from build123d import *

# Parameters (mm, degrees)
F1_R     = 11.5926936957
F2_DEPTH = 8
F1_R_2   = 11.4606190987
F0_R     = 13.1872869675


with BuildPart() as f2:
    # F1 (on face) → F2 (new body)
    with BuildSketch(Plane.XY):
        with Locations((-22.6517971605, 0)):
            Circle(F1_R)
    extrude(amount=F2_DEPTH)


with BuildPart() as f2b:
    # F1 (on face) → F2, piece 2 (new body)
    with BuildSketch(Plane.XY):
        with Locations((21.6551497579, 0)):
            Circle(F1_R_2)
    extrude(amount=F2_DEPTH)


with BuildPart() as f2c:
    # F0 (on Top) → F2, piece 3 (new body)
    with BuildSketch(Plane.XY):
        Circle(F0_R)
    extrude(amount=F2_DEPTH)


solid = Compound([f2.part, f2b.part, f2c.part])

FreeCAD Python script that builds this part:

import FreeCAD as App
import Part
import Sketcher
from FreeCAD import Vector
Q = App.Units.Quantity

doc = App.newDocument("Part")
body = doc.addObject("PartDesign::Body", "Body")

# Sketch on XY plane
sketch1 = doc.addObject("Sketcher::SketchObject", "Sketch")
body.addObject(sketch1)
sketch1.AttachmentSupport = (doc.XY_Plane, [""])
sketch1.MapMode = "FlatFace"
sketch1.addGeometry(Part.Circle(Vector(-23, 0, 0), Vector(0, 0, 1), 12), False)
sketch1.addConstraint(Sketcher.Constraint("PointOnObject", 0, 3, -1))
sketch1.addConstraint(Sketcher.Constraint("Diameter", 0, Q("23.185387 mm")))
sketch1.addConstraint(Sketcher.Constraint("DistanceX", 0, 3, -1, 1, Q("22.651797 mm")))
pad1 = doc.addObject("PartDesign::Pad", "Pad")
body.addObject(pad1)
pad1.Profile = sketch1
pad1.Length = 8
body2 = doc.addObject("PartDesign::Body", "Body001")

# Sketch on XY plane
sketch2 = doc.addObject("Sketcher::SketchObject", "Sketch001")
body2.addObject(sketch2)
sketch2.AttachmentSupport = (doc.getObject("XY_Plane001"), [""])
sketch2.MapMode = "FlatFace"
sketch2.addGeometry(Part.Circle(Vector(22, 0, 0), Vector(0, 0, 1), 11), False)
sketch2.addConstraint(Sketcher.Constraint("PointOnObject", 0, 3, -1))
sketch2.addConstraint(Sketcher.Constraint("Diameter", 0, Q("22.921238 mm")))
sketch2.addConstraint(Sketcher.Constraint("DistanceX", -1, 1, 0, 3, Q("21.65515 mm")))
pad2 = doc.addObject("PartDesign::Pad", "Pad001")
body2.addObject(pad2)
pad2.Profile = sketch2
pad2.Length = 8
body3 = doc.addObject("PartDesign::Body", "Body002")

# Sketch on XY plane
sketch3 = doc.addObject("Sketcher::SketchObject", "Sketch002")
body3.addObject(sketch3)
sketch3.AttachmentSupport = (doc.getObject("XY_Plane002"), [""])
sketch3.MapMode = "FlatFace"
sketch3.addGeometry(Part.Circle(Vector(0, 0, 0), Vector(0, 0, 1), 13), False)
sketch3.addConstraint(Sketcher.Constraint("Coincident", 0, 3, -1, 1))
sketch3.addConstraint(Sketcher.Constraint("Diameter", 0, Q("26.374574 mm")))
pad3 = doc.addObject("PartDesign::Pad", "Pad002")
body3.addObject(pad3)
pad3.Profile = sketch3
pad3.Length = 8

doc.recompute()
